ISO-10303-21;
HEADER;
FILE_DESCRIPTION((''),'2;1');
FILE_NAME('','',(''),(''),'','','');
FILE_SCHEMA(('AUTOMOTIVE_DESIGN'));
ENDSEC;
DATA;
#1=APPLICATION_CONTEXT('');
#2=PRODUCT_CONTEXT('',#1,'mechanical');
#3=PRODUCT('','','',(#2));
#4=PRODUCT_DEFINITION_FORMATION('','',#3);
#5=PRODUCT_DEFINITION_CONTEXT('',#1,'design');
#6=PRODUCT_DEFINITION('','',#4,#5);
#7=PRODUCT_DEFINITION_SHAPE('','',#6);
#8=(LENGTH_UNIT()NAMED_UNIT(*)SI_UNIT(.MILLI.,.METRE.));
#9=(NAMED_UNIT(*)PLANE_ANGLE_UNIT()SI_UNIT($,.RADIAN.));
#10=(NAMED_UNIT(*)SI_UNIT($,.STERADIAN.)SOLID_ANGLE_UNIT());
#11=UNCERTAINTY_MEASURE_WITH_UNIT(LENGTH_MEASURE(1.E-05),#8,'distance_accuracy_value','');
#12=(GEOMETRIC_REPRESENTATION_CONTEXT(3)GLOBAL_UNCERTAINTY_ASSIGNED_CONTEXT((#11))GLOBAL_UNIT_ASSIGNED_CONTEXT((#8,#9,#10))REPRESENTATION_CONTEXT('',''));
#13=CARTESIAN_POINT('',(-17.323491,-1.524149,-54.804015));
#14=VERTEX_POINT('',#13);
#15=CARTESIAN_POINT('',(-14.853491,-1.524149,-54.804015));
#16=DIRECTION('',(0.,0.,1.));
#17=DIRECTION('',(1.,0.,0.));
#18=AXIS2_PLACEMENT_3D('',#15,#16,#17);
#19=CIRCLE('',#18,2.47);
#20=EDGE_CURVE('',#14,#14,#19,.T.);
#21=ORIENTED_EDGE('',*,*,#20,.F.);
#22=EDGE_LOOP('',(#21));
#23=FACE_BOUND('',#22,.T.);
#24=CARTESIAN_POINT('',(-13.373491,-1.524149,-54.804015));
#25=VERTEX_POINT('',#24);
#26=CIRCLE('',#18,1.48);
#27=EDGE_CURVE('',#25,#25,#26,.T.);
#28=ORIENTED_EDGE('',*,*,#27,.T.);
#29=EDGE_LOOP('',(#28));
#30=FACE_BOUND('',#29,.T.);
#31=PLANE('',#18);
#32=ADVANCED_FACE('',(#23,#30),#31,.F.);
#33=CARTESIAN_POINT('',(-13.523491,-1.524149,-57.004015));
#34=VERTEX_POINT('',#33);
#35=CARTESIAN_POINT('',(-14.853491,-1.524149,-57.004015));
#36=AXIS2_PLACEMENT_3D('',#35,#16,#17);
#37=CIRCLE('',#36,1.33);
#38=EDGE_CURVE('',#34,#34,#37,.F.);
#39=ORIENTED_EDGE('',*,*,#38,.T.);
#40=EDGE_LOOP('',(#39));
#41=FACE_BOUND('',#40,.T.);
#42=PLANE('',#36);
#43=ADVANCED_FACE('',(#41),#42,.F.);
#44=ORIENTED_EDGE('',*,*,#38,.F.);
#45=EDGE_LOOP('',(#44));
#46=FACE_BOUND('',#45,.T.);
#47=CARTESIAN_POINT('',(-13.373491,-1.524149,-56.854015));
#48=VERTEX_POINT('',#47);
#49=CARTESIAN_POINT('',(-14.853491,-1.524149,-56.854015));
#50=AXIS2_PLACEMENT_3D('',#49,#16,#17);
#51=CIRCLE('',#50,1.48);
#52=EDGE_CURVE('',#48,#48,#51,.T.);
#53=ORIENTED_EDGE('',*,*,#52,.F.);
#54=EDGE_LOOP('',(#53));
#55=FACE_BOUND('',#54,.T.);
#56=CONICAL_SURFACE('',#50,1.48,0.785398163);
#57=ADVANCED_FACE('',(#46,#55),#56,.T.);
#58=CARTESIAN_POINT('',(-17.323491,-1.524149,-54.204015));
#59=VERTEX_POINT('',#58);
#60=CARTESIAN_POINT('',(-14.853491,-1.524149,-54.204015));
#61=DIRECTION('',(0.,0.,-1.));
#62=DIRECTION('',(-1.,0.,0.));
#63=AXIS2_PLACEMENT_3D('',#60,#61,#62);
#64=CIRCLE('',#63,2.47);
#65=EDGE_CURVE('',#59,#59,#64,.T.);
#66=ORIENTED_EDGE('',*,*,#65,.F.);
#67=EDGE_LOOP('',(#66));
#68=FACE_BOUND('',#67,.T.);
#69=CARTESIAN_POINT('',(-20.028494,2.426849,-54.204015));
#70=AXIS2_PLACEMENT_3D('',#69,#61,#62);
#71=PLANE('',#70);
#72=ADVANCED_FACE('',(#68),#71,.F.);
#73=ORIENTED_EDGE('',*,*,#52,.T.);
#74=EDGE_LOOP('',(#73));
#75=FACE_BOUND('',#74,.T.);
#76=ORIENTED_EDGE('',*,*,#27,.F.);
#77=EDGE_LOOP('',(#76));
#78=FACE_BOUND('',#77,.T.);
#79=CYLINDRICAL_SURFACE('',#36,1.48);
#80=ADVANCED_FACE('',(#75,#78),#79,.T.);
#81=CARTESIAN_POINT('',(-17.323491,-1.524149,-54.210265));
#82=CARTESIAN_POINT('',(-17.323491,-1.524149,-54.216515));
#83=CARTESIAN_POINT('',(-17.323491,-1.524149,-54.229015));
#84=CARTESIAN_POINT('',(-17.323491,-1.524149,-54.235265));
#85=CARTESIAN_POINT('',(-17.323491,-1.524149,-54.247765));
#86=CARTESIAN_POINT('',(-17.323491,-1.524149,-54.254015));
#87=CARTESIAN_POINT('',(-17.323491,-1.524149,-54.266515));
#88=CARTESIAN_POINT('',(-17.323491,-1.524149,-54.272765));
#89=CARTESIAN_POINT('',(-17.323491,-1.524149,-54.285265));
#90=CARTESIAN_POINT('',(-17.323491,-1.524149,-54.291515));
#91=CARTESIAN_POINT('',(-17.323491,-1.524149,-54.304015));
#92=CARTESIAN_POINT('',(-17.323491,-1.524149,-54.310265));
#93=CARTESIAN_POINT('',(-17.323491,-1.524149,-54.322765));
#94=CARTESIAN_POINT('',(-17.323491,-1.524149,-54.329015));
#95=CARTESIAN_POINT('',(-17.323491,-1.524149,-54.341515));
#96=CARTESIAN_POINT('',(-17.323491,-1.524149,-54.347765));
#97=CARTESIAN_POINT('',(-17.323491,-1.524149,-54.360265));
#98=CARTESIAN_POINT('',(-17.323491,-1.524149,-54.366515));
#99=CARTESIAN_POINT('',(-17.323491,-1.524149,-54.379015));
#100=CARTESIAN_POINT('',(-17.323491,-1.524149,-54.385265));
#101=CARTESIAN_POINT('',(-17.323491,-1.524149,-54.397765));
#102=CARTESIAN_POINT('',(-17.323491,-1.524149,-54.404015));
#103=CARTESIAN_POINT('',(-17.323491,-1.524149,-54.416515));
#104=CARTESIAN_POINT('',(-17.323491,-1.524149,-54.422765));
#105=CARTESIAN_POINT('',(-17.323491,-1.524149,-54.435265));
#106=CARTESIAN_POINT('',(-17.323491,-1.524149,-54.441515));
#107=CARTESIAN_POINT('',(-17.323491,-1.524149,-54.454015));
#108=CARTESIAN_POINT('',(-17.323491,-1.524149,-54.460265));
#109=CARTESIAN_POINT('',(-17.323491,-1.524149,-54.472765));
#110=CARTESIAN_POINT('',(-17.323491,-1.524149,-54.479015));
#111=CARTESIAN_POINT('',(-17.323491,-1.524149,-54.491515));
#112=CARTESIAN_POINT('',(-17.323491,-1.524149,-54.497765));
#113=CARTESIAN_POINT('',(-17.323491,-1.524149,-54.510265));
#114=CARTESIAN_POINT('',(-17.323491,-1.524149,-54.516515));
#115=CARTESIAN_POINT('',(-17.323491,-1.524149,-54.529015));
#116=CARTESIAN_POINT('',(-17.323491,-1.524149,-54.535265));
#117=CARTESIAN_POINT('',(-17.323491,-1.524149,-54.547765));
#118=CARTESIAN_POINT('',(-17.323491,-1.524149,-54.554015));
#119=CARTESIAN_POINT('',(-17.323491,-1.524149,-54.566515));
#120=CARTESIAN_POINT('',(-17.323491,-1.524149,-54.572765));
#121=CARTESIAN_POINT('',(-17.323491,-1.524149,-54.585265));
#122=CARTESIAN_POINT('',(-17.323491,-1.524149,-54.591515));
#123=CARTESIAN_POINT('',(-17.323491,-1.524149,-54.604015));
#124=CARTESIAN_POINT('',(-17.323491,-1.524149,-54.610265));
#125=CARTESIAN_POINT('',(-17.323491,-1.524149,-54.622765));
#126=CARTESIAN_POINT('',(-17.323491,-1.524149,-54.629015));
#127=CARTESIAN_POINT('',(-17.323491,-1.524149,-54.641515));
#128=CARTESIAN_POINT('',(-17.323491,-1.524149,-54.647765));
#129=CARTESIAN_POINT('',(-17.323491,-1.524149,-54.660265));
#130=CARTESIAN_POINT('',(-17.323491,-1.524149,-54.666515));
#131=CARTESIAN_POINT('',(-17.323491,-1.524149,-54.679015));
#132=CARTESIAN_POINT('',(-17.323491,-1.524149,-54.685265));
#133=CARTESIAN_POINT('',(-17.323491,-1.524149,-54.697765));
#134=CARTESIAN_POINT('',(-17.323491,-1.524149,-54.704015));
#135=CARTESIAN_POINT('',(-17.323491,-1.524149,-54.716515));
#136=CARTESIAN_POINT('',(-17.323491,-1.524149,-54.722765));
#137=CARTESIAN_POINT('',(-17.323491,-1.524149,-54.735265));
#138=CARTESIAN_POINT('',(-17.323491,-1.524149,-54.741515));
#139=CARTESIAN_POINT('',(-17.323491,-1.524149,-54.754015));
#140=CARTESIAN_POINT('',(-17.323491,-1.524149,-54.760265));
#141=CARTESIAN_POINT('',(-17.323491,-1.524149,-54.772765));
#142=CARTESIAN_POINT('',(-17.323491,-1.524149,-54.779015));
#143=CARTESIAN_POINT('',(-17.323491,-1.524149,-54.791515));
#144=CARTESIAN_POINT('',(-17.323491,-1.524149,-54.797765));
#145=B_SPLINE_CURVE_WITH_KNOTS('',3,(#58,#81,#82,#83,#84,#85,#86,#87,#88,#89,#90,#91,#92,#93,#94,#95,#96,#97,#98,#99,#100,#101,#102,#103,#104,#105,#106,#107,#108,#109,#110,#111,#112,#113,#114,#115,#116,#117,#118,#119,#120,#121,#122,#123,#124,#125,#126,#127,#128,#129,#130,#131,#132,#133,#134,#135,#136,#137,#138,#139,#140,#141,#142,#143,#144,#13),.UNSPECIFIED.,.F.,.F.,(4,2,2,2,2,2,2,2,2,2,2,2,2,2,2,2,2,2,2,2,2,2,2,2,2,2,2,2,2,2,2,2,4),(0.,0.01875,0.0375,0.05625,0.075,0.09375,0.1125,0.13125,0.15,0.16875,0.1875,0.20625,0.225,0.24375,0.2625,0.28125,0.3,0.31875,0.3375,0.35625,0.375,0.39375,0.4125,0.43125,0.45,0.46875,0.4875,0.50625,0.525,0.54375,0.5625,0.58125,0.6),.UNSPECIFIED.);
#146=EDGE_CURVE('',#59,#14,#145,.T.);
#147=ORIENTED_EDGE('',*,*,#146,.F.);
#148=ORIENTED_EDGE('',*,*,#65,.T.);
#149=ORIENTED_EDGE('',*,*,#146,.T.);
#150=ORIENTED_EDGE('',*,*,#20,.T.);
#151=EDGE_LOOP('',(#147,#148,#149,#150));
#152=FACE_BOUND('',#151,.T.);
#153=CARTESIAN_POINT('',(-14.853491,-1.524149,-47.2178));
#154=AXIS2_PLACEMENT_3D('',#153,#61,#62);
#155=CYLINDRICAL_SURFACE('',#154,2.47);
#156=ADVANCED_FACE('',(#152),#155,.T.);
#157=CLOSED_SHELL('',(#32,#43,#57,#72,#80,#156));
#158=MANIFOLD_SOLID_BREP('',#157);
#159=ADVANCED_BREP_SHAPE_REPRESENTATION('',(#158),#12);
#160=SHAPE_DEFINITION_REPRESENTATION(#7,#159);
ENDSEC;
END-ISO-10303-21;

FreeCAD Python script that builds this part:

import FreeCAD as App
import Part
import Sketcher

V = App.Vector
Q = App.Units.Quantity


def edges_at(feature, points):
    """Names of the edges that pass closest to the given points."""
    edges = feature.Shape.Edges
    near = lambda p: min(range(len(edges)), key=lambda i: edges[i].distToShape(Part.Vertex(*p))[0])
    return sorted({f"Edge{near(p) + 1}" for p in points})

doc = App.newDocument("Part")
body = doc.addObject("PartDesign::Body", "Body")

sketch1 = doc.addObject("Sketcher::SketchObject", "Sketch")
body.addObject(sketch1)
sketch1.AttachmentSupport = (doc.XY_Plane, [""])
sketch1.MapMode = "FlatFace"
sketch1.AttachmentOffset = App.Placement(V(0, 0, -54.804015), App.Rotation())
sketch1.addGeometry(Part.Circle(V(-14.9, -1.5, 0), V(0, 0, 1), 2.5), False)
sketch1.addConstraint([
    Sketcher.Constraint("Diameter", 0, Q("4.94 mm")),
    Sketcher.Constraint("DistanceX", 0, 3, -1, 1, Q("14.853491 mm")),
    Sketcher.Constraint("DistanceY", 0, 3, -1, 1, Q("1.524149 mm")),
])
pad1 = doc.addObject("PartDesign::Pad", "Pad")
body.addObject(pad1)
pad1.Profile = sketch1
pad1.Length = 0.6

sketch2 = doc.addObject("Sketcher::SketchObject", "Sketch001")
body.addObject(sketch2)
sketch2.AttachmentSupport = (doc.XY_Plane, [""])
sketch2.MapMode = "FlatFace"
sketch2.AttachmentOffset = App.Placement(V(0, 0, -54.804015), App.Rotation())
sketch2.addGeometry(Part.Circle(V(-14.9, -1.5, 0), V(0, 0, 1), 1.5), False)
sketch2.addConstraint([
    Sketcher.Constraint("Diameter", 0, Q("2.96 mm")),
    Sketcher.Constraint("DistanceX", 0, 3, -1, 1, Q("14.853491 mm")),
    Sketcher.Constraint("DistanceY", 0, 3, -1, 1, Q("1.524149 mm")),
])
pad2 = doc.addObject("PartDesign::Pad", "Pad001")
body.addObject(pad2)
pad2.Profile = sketch2
pad2.Length = 2.2
pad2.Reversed = True
doc.recompute()

chamfer = doc.addObject("PartDesign::Chamfer", "Chamfer")
body.addObject(chamfer)
chamfer.Base = (pad2, edges_at(pad2, [(-16.333, -1.524, -57.004)]))
chamfer.Size = 0.15

doc.recompute()
